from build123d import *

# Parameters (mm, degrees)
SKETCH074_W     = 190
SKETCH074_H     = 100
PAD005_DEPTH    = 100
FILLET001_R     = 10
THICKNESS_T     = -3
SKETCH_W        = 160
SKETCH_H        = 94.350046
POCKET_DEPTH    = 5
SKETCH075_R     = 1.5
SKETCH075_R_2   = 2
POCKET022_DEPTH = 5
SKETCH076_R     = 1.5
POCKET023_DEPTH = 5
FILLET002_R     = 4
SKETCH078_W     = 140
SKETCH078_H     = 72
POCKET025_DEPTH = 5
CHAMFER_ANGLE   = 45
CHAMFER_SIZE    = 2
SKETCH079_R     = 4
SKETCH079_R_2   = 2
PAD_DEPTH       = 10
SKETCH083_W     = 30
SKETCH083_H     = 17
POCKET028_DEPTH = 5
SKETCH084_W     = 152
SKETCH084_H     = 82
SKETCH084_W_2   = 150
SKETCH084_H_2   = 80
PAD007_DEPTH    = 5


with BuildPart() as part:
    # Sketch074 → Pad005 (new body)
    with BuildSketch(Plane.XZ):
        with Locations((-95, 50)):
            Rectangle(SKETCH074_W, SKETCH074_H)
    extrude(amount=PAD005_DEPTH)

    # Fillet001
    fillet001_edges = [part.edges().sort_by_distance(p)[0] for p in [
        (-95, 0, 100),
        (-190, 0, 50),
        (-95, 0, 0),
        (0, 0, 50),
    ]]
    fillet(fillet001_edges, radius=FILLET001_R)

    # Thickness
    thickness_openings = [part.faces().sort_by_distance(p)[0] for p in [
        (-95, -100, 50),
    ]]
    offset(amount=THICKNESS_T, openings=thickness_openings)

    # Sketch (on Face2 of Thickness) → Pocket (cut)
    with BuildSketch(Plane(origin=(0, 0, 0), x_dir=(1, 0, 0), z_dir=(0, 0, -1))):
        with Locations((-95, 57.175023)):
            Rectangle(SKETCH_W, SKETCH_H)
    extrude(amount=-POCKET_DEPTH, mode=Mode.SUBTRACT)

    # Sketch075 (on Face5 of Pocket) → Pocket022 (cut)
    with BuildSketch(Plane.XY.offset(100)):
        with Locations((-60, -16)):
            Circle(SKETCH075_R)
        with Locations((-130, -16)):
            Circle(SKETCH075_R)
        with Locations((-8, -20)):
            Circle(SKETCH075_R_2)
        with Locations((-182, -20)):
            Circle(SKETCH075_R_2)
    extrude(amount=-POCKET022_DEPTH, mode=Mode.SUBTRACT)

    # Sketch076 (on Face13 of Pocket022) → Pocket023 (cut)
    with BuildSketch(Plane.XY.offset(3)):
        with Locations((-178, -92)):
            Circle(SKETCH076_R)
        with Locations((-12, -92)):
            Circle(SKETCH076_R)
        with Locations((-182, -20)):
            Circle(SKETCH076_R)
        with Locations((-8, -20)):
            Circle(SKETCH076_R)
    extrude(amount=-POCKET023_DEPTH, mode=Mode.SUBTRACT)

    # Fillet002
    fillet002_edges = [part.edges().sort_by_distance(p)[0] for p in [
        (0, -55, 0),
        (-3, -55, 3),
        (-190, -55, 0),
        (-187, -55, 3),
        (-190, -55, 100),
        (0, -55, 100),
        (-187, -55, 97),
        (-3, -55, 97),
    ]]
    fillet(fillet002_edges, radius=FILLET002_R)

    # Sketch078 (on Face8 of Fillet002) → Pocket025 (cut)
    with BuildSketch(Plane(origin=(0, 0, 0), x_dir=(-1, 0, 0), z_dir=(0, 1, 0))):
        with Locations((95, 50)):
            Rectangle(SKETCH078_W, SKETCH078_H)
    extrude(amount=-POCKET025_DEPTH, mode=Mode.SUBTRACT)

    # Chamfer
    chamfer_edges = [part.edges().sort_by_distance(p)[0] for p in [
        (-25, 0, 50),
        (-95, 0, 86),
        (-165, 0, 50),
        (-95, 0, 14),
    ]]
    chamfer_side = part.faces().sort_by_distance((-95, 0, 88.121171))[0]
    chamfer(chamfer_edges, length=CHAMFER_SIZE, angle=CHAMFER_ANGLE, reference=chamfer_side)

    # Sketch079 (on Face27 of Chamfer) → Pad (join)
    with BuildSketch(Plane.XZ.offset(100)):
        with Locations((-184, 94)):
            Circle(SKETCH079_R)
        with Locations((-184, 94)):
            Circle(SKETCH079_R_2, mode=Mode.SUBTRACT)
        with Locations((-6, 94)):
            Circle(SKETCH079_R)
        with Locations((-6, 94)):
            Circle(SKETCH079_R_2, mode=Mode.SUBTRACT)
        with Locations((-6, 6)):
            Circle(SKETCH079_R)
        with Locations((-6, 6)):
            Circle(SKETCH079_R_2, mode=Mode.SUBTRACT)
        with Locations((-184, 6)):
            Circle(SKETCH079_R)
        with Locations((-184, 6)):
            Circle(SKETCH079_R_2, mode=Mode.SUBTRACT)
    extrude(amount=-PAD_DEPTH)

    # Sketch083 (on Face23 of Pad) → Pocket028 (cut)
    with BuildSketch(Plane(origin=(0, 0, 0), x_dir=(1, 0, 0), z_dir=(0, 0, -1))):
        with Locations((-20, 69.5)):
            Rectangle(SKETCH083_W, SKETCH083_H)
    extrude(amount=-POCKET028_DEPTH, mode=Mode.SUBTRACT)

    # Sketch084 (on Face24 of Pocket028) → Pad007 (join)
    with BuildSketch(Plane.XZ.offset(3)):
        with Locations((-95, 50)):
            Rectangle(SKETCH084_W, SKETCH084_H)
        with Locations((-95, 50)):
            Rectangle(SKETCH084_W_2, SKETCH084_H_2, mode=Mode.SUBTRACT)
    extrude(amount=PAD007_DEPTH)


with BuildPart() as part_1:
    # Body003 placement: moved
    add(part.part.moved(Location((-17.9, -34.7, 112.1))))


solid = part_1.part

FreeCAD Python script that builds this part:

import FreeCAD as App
import Part
import Sketcher
from FreeCAD import Vector


def edges_at(feature, points):
    """Names of the edges that pass closest to the given points."""
    edges = feature.Shape.Edges
    near = lambda p: min(range(len(edges)), key=lambda i: edges[i].distToShape(Part.Vertex(*p))[0])
    return sorted({f"Edge{near(p) + 1}" for p in points})


def faces_at(feature, points):
    """Names of the faces that lie closest to the given points."""
    faces = feature.Shape.Faces
    near = lambda p: min(range(len(faces)), key=lambda i: faces[i].distToShape(Part.Vertex(*p))[0])
    return sorted({f"Face{near(p) + 1}" for p in points})

doc = App.newDocument("Part")
params = doc.addObject("Spreadsheet::Sheet", "Params")
for row, (alias, value) in enumerate([
    ("sketch1_width", "190 mm"),
    ("sketch1_height", "100 mm"),
    ("pad1_length", "100 mm"),
    ("fillet_radius", "10 mm"),
    ("thickness_wall", "3 mm"),
    ("sketch2_width", "160 mm"),
    ("pocket1_length", "5 mm"),
    ("sketch3_diameter", "3 mm"),
    ("sketch3_diameter2", "4 mm"),
    ("pocket2_length", "5 mm"),
    ("sketch4_diameter", "3 mm"),
    ("pocket3_length", "5 mm"),
    ("fillet2_radius", "4 mm"),
    ("sketch5_width", "140 mm"),
    ("sketch5_height", "72 mm"),
    ("pocket4_length", "5 mm"),
    ("chamfer_size", "2 mm"),
    ("sketch6_diameter", "8 mm"),
    ("sketch6_diameter2", "4 mm"),
    ("pad2_length", "10 mm"),
    ("sketch7_width", "30 mm"),
    ("sketch7_height", "17 mm"),
    ("pocket5_length", "5 mm"),
    ("sketch8_width", "152 mm"),
    ("sketch8_width2", "150 mm"),
    ("sketch8_height", "82 mm"),
    ("sketch8_height2", "80 mm"),
    ("pad3_length", "5 mm"),
], start=1):
    params.set(f"A{row}", alias)
    params.set(f"B{row}", "=" + value)
    params.setAlias(f"B{row}", alias)

body = doc.addObject("PartDesign::Body", "Body")

# Sketch on XZ plane
sketch1 = body.newObject("Sketcher::SketchObject", "Sketch")
sketch1.AttachmentSupport = (doc.getObject("XZ_Plane"), [""])
sketch1.MapMode = "FlatFace"
sketch1.addGeometry([
    Part.LineSegment(Vector(-190, 100, 0), Vector(-190, 0, 0)),
    Part.LineSegment(Vector(-190, 0, 0), Vector(0, 0, 0)),
    Part.LineSegment(Vector(0, 0, 0), Vector(0, 100, 0)),
    Part.LineSegment(Vector(0, 100, 0), Vector(-190, 100, 0)),
], False)
sketch1.addConstraint([
    Sketcher.Constraint("Coincident", 0, 2, 1, 1),
    Sketcher.Constraint("Coincident", 1, 2, 2, 1),
    Sketcher.Constraint("Coincident", 2, 2, 3, 1),
    Sketcher.Constraint("Coincident", 3, 2, 0, 1),
    Sketcher.Constraint("Vertical", 0),
    Sketcher.Constraint("Horizontal", 1),
    Sketcher.Constraint("Vertical", 2),
    Sketcher.Constraint("Horizontal", 3),
    Sketcher.Constraint("Coincident", 1, 2, -1, 1),
    Sketcher.Constraint("DistanceX", 1, 1, 1, 2, 190.0),
    Sketcher.Constraint("DistanceY", 0, 2, 0, 1, 100.0),
])
sketch1.setExpression("Constraints[9]", "Params.sketch1_width")
sketch1.setExpression("Constraints[10]", "Params.sketch1_height")
pad1 = body.newObject("PartDesign::Pad", "Pad")
pad1.Profile = sketch1
pad1.setExpression("Length", "Params.pad1_length")
doc.recompute()

fillet = body.newObject("PartDesign::Fillet", "Fillet")
fillet.Base = (pad1, edges_at(pad1, [
    (-95, 0, 100),
    (-190, 0, 50),
    (-95, 0, 0),
    (0, 0, 50),
]))
fillet.setExpression("Radius", "Params.fillet_radius")
doc.recompute()

thickness = body.newObject("PartDesign::Thickness", "Thickness")
thickness.Base = (fillet, faces_at(fillet, [(-95, -100, 50)]))
thickness.setExpression("Value", "Params.thickness_wall")
thickness.Reversed = True
thickness.Join = "Arc"

# Sketch on XY plane
sketch2 = body.newObject("Sketcher::SketchObject", "Sketch001")
sketch2.AttachmentSupport = (doc.getObject("XY_Plane"), [""])
sketch2.MapMode = "FlatFace"
sketch2.addGeometry([
    Part.LineSegment(Vector(-175, -104.350046, 0), Vector(-175, -10, 0)),
    Part.LineSegment(Vector(-175, -10, 0), Vector(-15, -10, 0)),
    Part.LineSegment(Vector(-15, -10, 0), Vector(-15, -104.350046, 0)),
    Part.LineSegment(Vector(-15, -104.350046, 0), Vector(-175, -104.350046, 0)),
], False)
sketch2.addConstraint([
    Sketcher.Constraint("Coincident", 0, 2, 1, 1),
    Sketcher.Constraint("Coincident", 1, 2, 2, 1),
    Sketcher.Constraint("Coincident", 2, 2, 3, 1),
    Sketcher.Constraint("Coincident", 3, 2, 0, 1),
    Sketcher.Constraint("Vertical", 0),
    Sketcher.Constraint("Horizontal", 1),
    Sketcher.Constraint("Vertical", 2),
    Sketcher.Constraint("Horizontal", 3),
    Sketcher.Constraint("DistanceX", 1, 1, 1, 2, 160.0),
    Sketcher.Constraint("DistanceX", 0, 2, -1, 1, 175.0),
    Sketcher.Constraint("DistanceY", 0, 2, -1, 1, 10.0),
    Sketcher.Constraint("DistanceY", 0, 1, 0, 2, 94.350046),
])
sketch2.setExpression("Constraints[8]", "Params.sketch2_width")
pocket1 = body.newObject("PartDesign::Pocket", "Pocket")
pocket1.Profile = sketch2
pocket1.setExpression("Length", "Params.pocket1_length")
pocket1.Reversed = True

# Sketch on XY plane
sketch3 = body.newObject("Sketcher::SketchObject", "Sketch002")
sketch3.AttachmentSupport = (doc.getObject("XY_Plane"), [""])
sketch3.MapMode = "FlatFace"
sketch3.AttachmentOffset = App.Placement(Vector(0, 0, 100), App.Rotation())
sketch3.addGeometry([
    Part.Circle(Vector(-60, -16, 0), Vector(0, 0, 1), 1.5),
    Part.Circle(Vector(-130, -16, 0), Vector(0, 0, 1), 1.5),
    Part.Circle(Vector(-8, -20, 0), Vector(0, 0, 1), 2),
    Part.Circle(Vector(-182, -20, 0), Vector(0, 0, 1), 2),
], False)
sketch3.addConstraint([
    Sketcher.Constraint("Equal", 0, 1),
    Sketcher.Constraint("Equal", 2, 3),
    Sketcher.Constraint("Horizontal", 0, 3, 1, 3),
    Sketcher.Constraint("Horizontal", 2, 3, 3, 3),
    Sketcher.Constraint("Diameter", 0, 3.0),
    Sketcher.Constraint("Diameter", 2, 4.0),
    Sketcher.Constraint("DistanceX", 0, 3, -1, 1, 60.0),
    Sketcher.Constraint("DistanceY", 0, 3, -1, 1, 16.0),
    Sketcher.Constraint("DistanceX", 1, 3, -1, 1, 130.0),
    Sketcher.Constraint("DistanceX", 2, 3, -1, 1, 8.0),
    Sketcher.Constraint("DistanceY", 2, 3, -1, 1, 20.0),
    Sketcher.Constraint("DistanceX", 3, 3, -1, 1, 182.0),
])
sketch3.setExpression("Constraints[4]", "Params.sketch3_diameter")
sketch3.setExpression("Constraints[5]", "Params.sketch3_diameter2")
pocket2 = body.newObject("PartDesign::Pocket", "Pocket001")
pocket2.Profile = sketch3
pocket2.setExpression("Length", "Params.pocket2_length")

# Sketch on XY plane
sketch4 = body.newObject("Sketcher::SketchObject", "Sketch003")
sketch4.AttachmentSupport = (doc.getObject("XY_Plane"), [""])
sketch4.MapMode = "FlatFace"
sketch4.AttachmentOffset = App.Placement(Vector(0, 0, 3), App.Rotation())
sketch4.addGeometry([
    Part.Circle(Vector(-178, -92, 0), Vector(0, 0, 1), 1.5),
    Part.Circle(Vector(-12, -92, 0), Vector(0, 0, 1), 1.5),
    Part.Circle(Vector(-182, -20, 0), Vector(0, 0, 1), 1.5),
    Part.Circle(Vector(-8, -20, 0), Vector(0, 0, 1), 1.5),
], False)
sketch4.addConstraint([
    Sketcher.Constraint("Equal", 0, 1),
    Sketcher.Constraint("Equal", 1, 2),
    Sketcher.Constraint("Equal", 2, 3),
    Sketcher.Constraint("Horizontal", 0, 3, 1, 3),
    Sketcher.Constraint("Horizontal", 2, 3, 3, 3),
    Sketcher.Constraint("Diameter", 0, 3.0),
    Sketcher.Constraint("DistanceX", 0, 3, -1, 1, 178.0),
    Sketcher.Constraint("DistanceY", 0, 3, -1, 1, 92.0),
    Sketcher.Constraint("DistanceX", 1, 3, -1, 1, 12.0),
    Sketcher.Constraint("DistanceX", 2, 3, -1, 1, 182.0),
    Sketcher.Constraint("DistanceY", 2, 3, -1, 1, 20.0),
    Sketcher.Constraint("DistanceX", 3, 3, -1, 1, 8.0),
])
sketch4.setExpression("Constraints[5]", "Params.sketch4_diameter")
pocket3 = body.newObject("PartDesign::Pocket", "Pocket002")
pocket3.Profile = sketch4
pocket3.setExpression("Length", "Params.pocket3_length")
doc.recompute()

fillet2 = body.newObject("PartDesign::Fillet", "Fillet001")
fillet2.Base = (pocket3, edges_at(pocket3, [
    (0, -55, 0),
    (-3, -55, 3),
    (-190, -55, 0),
    (-187, -55, 3),
    (-190, -55, 100),
    (0, -55, 100),
    (-187, -55, 97),
    (-3, -55, 97),
]))
fillet2.setExpression("Radius", "Params.fillet2_radius")

# Sketch on XZ plane
sketch5 = body.newObject("Sketcher::SketchObject", "Sketch004")
sketch5.AttachmentSupport = (doc.getObject("XZ_Plane"), [""])
sketch5.MapMode = "FlatFace"
sketch5.addGeometry([
    Part.LineSegment(Vector(-25, 86, 0), Vector(-25, 14, 0)),
    Part.LineSegment(Vector(-25, 14, 0), Vector(-165, 14, 0)),
    Part.LineSegment(Vector(-165, 14, 0), Vector(-165, 86, 0)),
    Part.LineSegment(Vector(-165, 86, 0), Vector(-25, 86, 0)),
], False)
sketch5.addConstraint([
    Sketcher.Constraint("Coincident", 0, 2, 1, 1),
    Sketcher.Constraint("Coincident", 1, 2, 2, 1),
    Sketcher.Constraint("Coincident", 2, 2, 3, 1),
    Sketcher.Constraint("Coincident", 3, 2, 0, 1),
    Sketcher.Constraint("Vertical", 0),
    Sketcher.Constraint("Horizontal", 1),
    Sketcher.Constraint("Vertical", 2),
    Sketcher.Constraint("Horizontal", 3),
    Sketcher.Constraint("DistanceX", 1, 2, 1, 1, 140.0),
    Sketcher.Constraint("DistanceY", 0, 2, 0, 1, 72.0),
    Sketcher.Constraint("DistanceX", 0, 2, -1, 1, 25.0),
    Sketcher.Constraint("DistanceY", -1, 1, 0, 2, 14.0),
])
sketch5.setExpression("Constraints[8]", "Params.sketch5_width")
sketch5.setExpression("Constraints[9]", "Params.sketch5_height")
pocket4 = body.newObject("PartDesign::Pocket", "Pocket003")
pocket4.Profile = sketch5
pocket4.setExpression("Length", "Params.pocket4_length")
pocket4.Reversed = True
doc.recompute()

chamfer = body.newObject("PartDesign::Chamfer", "Chamfer")
chamfer.Base = (pocket4, edges_at(pocket4, [
    (-25, 0, 50),
    (-95, 0, 86),
    (-165, 0, 50),
    (-95, 0, 14),
]))
chamfer.setExpression("Size", "Params.chamfer_size")

# Sketch on XZ plane
sketch6 = body.newObject("Sketcher::SketchObject", "Sketch005")
sketch6.AttachmentSupport = (doc.getObject("XZ_Plane"), [""])
sketch6.MapMode = "FlatFace"
sketch6.AttachmentOffset = App.Placement(Vector(0, 0, 100), App.Rotation())
sketch6.addGeometry([
    Part.Circle(Vector(-184, 94, 0), Vector(0, 0, 1), 4),  # 0
    Part.Circle(Vector(-184, 94, 0), Vector(0, 0, 1), 2),  # 1
    Part.Circle(Vector(-6, 94, 0), Vector(0, 0, 1), 4),  # 2
    Part.Circle(Vector(-6, 94, 0), Vector(0, 0, 1), 2),  # 3
    Part.Circle(Vector(-6, 6, 0), Vector(0, 0, 1), 4),  # 4
    Part.Circle(Vector(-6, 6, 0), Vector(0, 0, 1), 2),  # 5
    Part.Circle(Vector(-184, 6, 0), Vector(0, 0, 1), 4),  # 6
    Part.Circle(Vector(-184, 6, 0), Vector(0, 0, 1), 2),  # 7
], False)
sketch6.addConstraint([
    Sketcher.Constraint("Coincident", 1, 3, 0, 3),
    Sketcher.Constraint("Coincident", 3, 3, 2, 3),
    Sketcher.Constraint("Coincident", 5, 3, 4, 3),
    Sketcher.Constraint("Coincident", 7, 3, 6, 3),
    Sketcher.Constraint("Equal", 0, 2),
    Sketcher.Constraint("Equal", 1, 3),
    Sketcher.Constraint("Equal", 2, 4),
    Sketcher.Constraint("Equal", 3, 5),
    Sketcher.Constraint("Equal", 4, 6),
    Sketcher.Constraint("Equal", 5, 7),
    Sketcher.Constraint("Horizontal", 1, 3, 2, 3),
    Sketcher.Constraint("Horizontal", 5, 3, 6, 3),
    Sketcher.Constraint("Vertical", 3, 3, 4, 3),
    Sketcher.Constraint("Vertical", 1, 3, 6, 3),
    Sketcher.Constraint("Diameter", 0, 8.0),
    Sketcher.Constraint("Diameter", 1, 4.0),
    Sketcher.Constraint("DistanceX", 0, 3, -1, 1, 184.0),
    Sketcher.Constraint("DistanceY", -1, 1, 0, 3, 94.0),
    Sketcher.Constraint("DistanceX", 2, 3, -1, 1, 6.0),
    Sketcher.Constraint("DistanceY", -1, 1, 4, 3, 6.0),
])
sketch6.setExpression("Constraints[14]", "Params.sketch6_diameter")
sketch6.setExpression("Constraints[15]", "Params.sketch6_diameter2")
pad2 = body.newObject("PartDesign::Pad", "Pad001")
pad2.Profile = sketch6
pad2.setExpression("Length", "Params.pad2_length")
pad2.Reversed = True

# Sketch on XY plane
sketch7 = body.newObject("Sketcher::SketchObject", "Sketch006")
sketch7.AttachmentSupport = (doc.getObject("XY_Plane"), [""])
sketch7.MapMode = "FlatFace"
sketch7.addGeometry([
    Part.LineSegment(Vector(-35, -78, 0), Vector(-35, -61, 0)),
    Part.LineSegment(Vector(-35, -61, 0), Vector(-5, -61, 0)),
    Part.LineSegment(Vector(-5, -61, 0), Vector(-5, -78, 0)),
    Part.LineSegment(Vector(-5, -78, 0), Vector(-35, -78, 0)),
], False)
sketch7.addConstraint([
    Sketcher.Constraint("Coincident", 0, 2, 1, 1),
    Sketcher.Constraint("Coincident", 1, 2, 2, 1),
    Sketcher.Constraint("Coincident", 2, 2, 3, 1),
    Sketcher.Constraint("Coincident", 3, 2, 0, 1),
    Sketcher.Constraint("Vertical", 0),
    Sketcher.Constraint("Horizontal", 1),
    Sketcher.Constraint("Vertical", 2),
    Sketcher.Constraint("Horizontal", 3),
    Sketcher.Constraint("DistanceX", 1, 1, 1, 2, 30.0),
    Sketcher.Constraint("DistanceY", 0, 1, 0, 2, 17.0),
    Sketcher.Constraint("DistanceX", 0, 2, -1, 1, 35.0),
    Sketcher.Constraint("DistanceY", 0, 2, -1, 1, 61.0),
])
sketch7.setExpression("Constraints[8]", "Params.sketch7_width")
sketch7.setExpression("Constraints[9]", "Params.sketch7_height")
pocket5 = body.newObject("PartDesign::Pocket", "Pocket004")
pocket5.Profile = sketch7
pocket5.setExpression("Length", "Params.pocket5_length")
pocket5.Reversed = True

# Sketch on XZ plane
sketch8 = body.newObject("Sketcher::SketchObject", "Sketch007")
sketch8.AttachmentSupport = (doc.getObject("XZ_Plane"), [""])
sketch8.MapMode = "FlatFace"
sketch8.AttachmentOffset = App.Placement(Vector(0, 0, 3), App.Rotation())
sketch8.addGeometry([
    Part.LineSegment(Vector(-171, 91, 0), Vector(-171, 9, 0)),  # 0
    Part.LineSegment(Vector(-171, 9, 0), Vector(-19, 9, 0)),  # 1
    Part.LineSegment(Vector(-19, 9, 0), Vector(-19, 91, 0)),  # 2
    Part.LineSegment(Vector(-19, 91, 0), Vector(-171, 91, 0)),  # 3
    Part.LineSegment(Vector(-20, 10, 0), Vector(-170, 10, 0)),  # 4
    Part.LineSegment(Vector(-170, 10, 0), Vector(-170, 90, 0)),  # 5
    Part.LineSegment(Vector(-170, 90, 0), Vector(-20, 90, 0)),  # 6
    Part.LineSegment(Vector(-20, 90, 0), Vector(-20, 10, 0)),  # 7
], False)
sketch8.addConstraint([
    Sketcher.Constraint("Coincident", 0, 2, 1, 1),
    Sketcher.Constraint("Coincident", 1, 2, 2, 1),
    Sketcher.Constraint("Coincident", 2, 2, 3, 1),
    Sketcher.Constraint("Coincident", 3, 2, 0, 1),
    Sketcher.Constraint("Coincident", 4, 2, 5, 1),
    Sketcher.Constraint("Coincident", 5, 2, 6, 1),
    Sketcher.Constraint("Coincident", 6, 2, 7, 1),
    Sketcher.Constraint("Coincident", 7, 2, 4, 1),
    Sketcher.Constraint("Vertical", 0),
    Sketcher.Constraint("Horizontal", 1),
    Sketcher.Constraint("Vertical", 2),
    Sketcher.Constraint("Horizontal", 3),
    Sketcher.Constraint("Horizontal", 4),
    Sketcher.Constraint("Vertical", 5),
    Sketcher.Constraint("Horizontal", 6),
    Sketcher.Constraint("Vertical", 7),
    Sketcher.Constraint("DistanceX", 1, 1, 1, 2, 152.0),
    Sketcher.Constraint("DistanceX", 4, 2, 4, 1, 150.0),
    Sketcher.Constraint("DistanceY", 0, 2, 0, 1, 82.0),
    Sketcher.Constraint("DistanceY", 5, 1, 5, 2, 80.0),
    Sketcher.Constraint("DistanceX", 0, 2, -1, 1, 171.0),
    Sketcher.Constraint("DistanceY", -1, 1, 0, 2, 9.0),
    Sketcher.Constraint("DistanceX", 4, 2, -1, 1, 170.0),
    Sketcher.Constraint("DistanceY", -1, 1, 4, 2, 10.0),
])
sketch8.setExpression("Constraints[16]", "Params.sketch8_width")
sketch8.setExpression("Constraints[17]", "Params.sketch8_width2")
sketch8.setExpression("Constraints[18]", "Params.sketch8_height")
sketch8.setExpression("Constraints[19]", "Params.sketch8_height2")
pad3 = body.newObject("PartDesign::Pad", "Pad002")
pad3.Profile = sketch8
pad3.setExpression("Length", "Params.pad3_length")
body2 = doc.addObject("PartDesign::Body", "Body001")
doc.recompute()

body.Placement = App.Placement(Vector(-17.9, -34.7, 112.1), App.Rotation(Vector(0, 0, 1), 0))
boolean = body2.newObject("PartDesign::Boolean", "Boolean")
boolean.Type = "Fuse"
boolean.addObjects([body])

doc.recompute()
